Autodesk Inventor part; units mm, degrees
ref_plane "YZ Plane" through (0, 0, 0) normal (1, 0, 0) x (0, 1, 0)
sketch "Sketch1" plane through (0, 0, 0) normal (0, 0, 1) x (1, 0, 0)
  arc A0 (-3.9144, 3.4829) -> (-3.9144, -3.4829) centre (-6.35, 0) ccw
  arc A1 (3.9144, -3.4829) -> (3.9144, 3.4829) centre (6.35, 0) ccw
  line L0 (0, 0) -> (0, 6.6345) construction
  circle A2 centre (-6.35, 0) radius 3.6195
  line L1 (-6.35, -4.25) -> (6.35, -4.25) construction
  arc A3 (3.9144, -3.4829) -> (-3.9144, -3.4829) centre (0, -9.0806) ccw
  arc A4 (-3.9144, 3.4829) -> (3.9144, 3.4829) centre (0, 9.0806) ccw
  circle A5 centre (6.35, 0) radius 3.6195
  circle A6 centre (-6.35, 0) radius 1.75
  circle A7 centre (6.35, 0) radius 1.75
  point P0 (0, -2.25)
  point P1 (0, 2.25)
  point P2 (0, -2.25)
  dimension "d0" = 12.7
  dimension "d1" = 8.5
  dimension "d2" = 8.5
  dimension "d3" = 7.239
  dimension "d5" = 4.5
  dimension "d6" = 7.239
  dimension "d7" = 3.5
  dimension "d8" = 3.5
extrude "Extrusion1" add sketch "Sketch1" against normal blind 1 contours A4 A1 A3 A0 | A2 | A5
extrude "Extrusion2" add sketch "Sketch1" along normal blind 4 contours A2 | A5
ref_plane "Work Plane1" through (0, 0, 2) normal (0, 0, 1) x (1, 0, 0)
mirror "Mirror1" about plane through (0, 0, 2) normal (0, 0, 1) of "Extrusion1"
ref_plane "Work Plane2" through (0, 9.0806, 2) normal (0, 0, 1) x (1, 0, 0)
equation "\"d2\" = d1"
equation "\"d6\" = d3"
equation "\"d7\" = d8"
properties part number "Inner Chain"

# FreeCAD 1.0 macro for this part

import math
import FreeCAD as App
import Part
import Sketcher

V = App.Vector
Q = App.Units.Quantity

doc = App.newDocument("Part")
params = doc.addObject("Spreadsheet::Sheet", "Params")
for row, (alias, value) in enumerate([
    ("sketch1_diameter", "3.5 mm"),
    ("sketch1_radius", "4.25 mm"),
    ("pad1_length", "1 mm"),
    ("sketch2_diameter", "3.5 mm"),
    ("pad2_length", "4 mm"),
], start=1):
    params.set(f"A{row}", alias)
    params.set(f"B{row}", "=" + value)
    params.setAlias(f"B{row}", alias)

body = doc.addObject("PartDesign::Body", "Body")

# Sketch on XY plane
sketch1 = body.newObject("Sketcher::SketchObject", "Sketch")
sketch1.AttachmentSupport = (doc.getObject("XY_Plane"), [""])
sketch1.MapMode = "FlatFace"
sketch1.addGeometry([
    Part.ArcOfCircle(Part.Circle(V(0, 9.0806, 0), V(0, 0, 1), 6.830576), math.radians(-124.964602), math.radians(-55.035398)),  # 0
    Part.ArcOfCircle(Part.Circle(V(-6.35, 0, 0), V(0, 0, 1), 4.250028), math.radians(55.034817), math.radians(304.965183)),  # 1
    Part.ArcOfCircle(Part.Circle(V(0, -9.0806, 0), V(0, 0, 1), 6.830576), math.radians(55.035398), math.radians(124.964602)),  # 2
    Part.ArcOfCircle(Part.Circle(V(6.35, 0, 0), V(0, 0, 1), 4.250028), math.radians(-124.965183), math.radians(124.965183)),  # 3
    Part.Circle(V(-6.35, 0, 0), V(0, 0, 1), 1.75),  # 4
    Part.Circle(V(6.35, 0, 0), V(0, 0, 1), 1.75),  # 5
], False)
sketch1.addConstraint([
    Sketcher.Constraint("Tangent", 0, 1, 1, 1),
    Sketcher.Constraint("Tangent", 1, 2, 2, 2),
    Sketcher.Constraint("Tangent", 2, 1, 3, 1),
    Sketcher.Constraint("Tangent", 3, 2, 0, 2),
    Sketcher.Constraint("Coincident", 4, 3, 1, 3),
    Sketcher.Constraint("Coincident", 5, 3, 3, 3),
    Sketcher.Constraint("Equal", 0, 2),
    Sketcher.Constraint("Equal", 1, 3),
    Sketcher.Constraint("Equal", 4, 5),
    Sketcher.Constraint("Symmetric", 0, 3, 2, 3, -1, 1),
    Sketcher.Constraint("PointOnObject", 0, 3, -2),
    Sketcher.Constraint("Diameter", 4, Q("3.5 mm")),
    Sketcher.Constraint("Radius", 1, Q("4.25 mm")),
    Sketcher.Constraint("DistanceX", 1, 3, 3, 3, Q("12.7 mm")),
    Sketcher.Constraint("Radius", 0, Q("6.8306 mm")),
])
sketch1.setExpression("Constraints[11]", "Params.sketch1_diameter")
sketch1.setExpression("Constraints[12]", "Params.sketch1_radius")
pad1 = body.newObject("PartDesign::Pad", "Pad")
pad1.Profile = sketch1
pad1.setExpression("Length", "Params.pad1_length")
pad1.Reversed = True

# Sketch on XY plane
sketch2 = body.newObject("Sketcher::SketchObject", "Sketch001")
sketch2.AttachmentSupport = (doc.getObject("XY_Plane"), [""])
sketch2.MapMode = "FlatFace"
sketch2.addGeometry([
    Part.Circle(V(-6.35, 0, 0), V(0, 0, 1), 3.6195),
    Part.Circle(V(-6.35, 0, 0), V(0, 0, 1), 1.75),
    Part.Circle(V(6.35, 0, 0), V(0, 0, 1), 3.6195),
    Part.Circle(V(6.35, 0, 0), V(0, 0, 1), 1.75),
], False)
sketch2.addConstraint([
    Sketcher.Constraint("Coincident", 1, 3, 0, 3),
    Sketcher.Constraint("Coincident", 3, 3, 2, 3),
    Sketcher.Constraint("Equal", 0, 2),
    Sketcher.Constraint("Equal", 1, 3),
    Sketcher.Constraint("Symmetric", 0, 3, 2, 3, -1, 1),
    Sketcher.Constraint("PointOnObject", 0, 3, -1),
    Sketcher.Constraint("Diameter", 1, Q("3.5 mm")),
    Sketcher.Constraint("Diameter", 0, Q("7.239 mm")),
    Sketcher.Constraint("DistanceX", 0, 3, 2, 3, Q("12.7 mm")),
])
sketch2.setExpression("Constraints[6]", "Params.sketch2_diameter")
pad2 = body.newObject("PartDesign::Pad", "Pad001")
pad2.Profile = sketch2
pad2.setExpression("Length", "Params.pad2_length")
doc.recompute()

datumplane = body.newObject("PartDesign::Plane", "DatumPlane")
datumplane.AttachmentSupport = (doc.getObject("XY_Plane"), [""])
datumplane.MapMode = "FlatFace"
datumplane.AttachmentOffset = App.Placement(V(0, 0, 2), App.Rotation())
mirrored = body.newObject("PartDesign::Mirrored", "Mirrored")
mirrored.Originals = [pad1]
mirrored.MirrorPlane = (datumplane, [""])
body.Tip = mirrored

doc.recompute()
